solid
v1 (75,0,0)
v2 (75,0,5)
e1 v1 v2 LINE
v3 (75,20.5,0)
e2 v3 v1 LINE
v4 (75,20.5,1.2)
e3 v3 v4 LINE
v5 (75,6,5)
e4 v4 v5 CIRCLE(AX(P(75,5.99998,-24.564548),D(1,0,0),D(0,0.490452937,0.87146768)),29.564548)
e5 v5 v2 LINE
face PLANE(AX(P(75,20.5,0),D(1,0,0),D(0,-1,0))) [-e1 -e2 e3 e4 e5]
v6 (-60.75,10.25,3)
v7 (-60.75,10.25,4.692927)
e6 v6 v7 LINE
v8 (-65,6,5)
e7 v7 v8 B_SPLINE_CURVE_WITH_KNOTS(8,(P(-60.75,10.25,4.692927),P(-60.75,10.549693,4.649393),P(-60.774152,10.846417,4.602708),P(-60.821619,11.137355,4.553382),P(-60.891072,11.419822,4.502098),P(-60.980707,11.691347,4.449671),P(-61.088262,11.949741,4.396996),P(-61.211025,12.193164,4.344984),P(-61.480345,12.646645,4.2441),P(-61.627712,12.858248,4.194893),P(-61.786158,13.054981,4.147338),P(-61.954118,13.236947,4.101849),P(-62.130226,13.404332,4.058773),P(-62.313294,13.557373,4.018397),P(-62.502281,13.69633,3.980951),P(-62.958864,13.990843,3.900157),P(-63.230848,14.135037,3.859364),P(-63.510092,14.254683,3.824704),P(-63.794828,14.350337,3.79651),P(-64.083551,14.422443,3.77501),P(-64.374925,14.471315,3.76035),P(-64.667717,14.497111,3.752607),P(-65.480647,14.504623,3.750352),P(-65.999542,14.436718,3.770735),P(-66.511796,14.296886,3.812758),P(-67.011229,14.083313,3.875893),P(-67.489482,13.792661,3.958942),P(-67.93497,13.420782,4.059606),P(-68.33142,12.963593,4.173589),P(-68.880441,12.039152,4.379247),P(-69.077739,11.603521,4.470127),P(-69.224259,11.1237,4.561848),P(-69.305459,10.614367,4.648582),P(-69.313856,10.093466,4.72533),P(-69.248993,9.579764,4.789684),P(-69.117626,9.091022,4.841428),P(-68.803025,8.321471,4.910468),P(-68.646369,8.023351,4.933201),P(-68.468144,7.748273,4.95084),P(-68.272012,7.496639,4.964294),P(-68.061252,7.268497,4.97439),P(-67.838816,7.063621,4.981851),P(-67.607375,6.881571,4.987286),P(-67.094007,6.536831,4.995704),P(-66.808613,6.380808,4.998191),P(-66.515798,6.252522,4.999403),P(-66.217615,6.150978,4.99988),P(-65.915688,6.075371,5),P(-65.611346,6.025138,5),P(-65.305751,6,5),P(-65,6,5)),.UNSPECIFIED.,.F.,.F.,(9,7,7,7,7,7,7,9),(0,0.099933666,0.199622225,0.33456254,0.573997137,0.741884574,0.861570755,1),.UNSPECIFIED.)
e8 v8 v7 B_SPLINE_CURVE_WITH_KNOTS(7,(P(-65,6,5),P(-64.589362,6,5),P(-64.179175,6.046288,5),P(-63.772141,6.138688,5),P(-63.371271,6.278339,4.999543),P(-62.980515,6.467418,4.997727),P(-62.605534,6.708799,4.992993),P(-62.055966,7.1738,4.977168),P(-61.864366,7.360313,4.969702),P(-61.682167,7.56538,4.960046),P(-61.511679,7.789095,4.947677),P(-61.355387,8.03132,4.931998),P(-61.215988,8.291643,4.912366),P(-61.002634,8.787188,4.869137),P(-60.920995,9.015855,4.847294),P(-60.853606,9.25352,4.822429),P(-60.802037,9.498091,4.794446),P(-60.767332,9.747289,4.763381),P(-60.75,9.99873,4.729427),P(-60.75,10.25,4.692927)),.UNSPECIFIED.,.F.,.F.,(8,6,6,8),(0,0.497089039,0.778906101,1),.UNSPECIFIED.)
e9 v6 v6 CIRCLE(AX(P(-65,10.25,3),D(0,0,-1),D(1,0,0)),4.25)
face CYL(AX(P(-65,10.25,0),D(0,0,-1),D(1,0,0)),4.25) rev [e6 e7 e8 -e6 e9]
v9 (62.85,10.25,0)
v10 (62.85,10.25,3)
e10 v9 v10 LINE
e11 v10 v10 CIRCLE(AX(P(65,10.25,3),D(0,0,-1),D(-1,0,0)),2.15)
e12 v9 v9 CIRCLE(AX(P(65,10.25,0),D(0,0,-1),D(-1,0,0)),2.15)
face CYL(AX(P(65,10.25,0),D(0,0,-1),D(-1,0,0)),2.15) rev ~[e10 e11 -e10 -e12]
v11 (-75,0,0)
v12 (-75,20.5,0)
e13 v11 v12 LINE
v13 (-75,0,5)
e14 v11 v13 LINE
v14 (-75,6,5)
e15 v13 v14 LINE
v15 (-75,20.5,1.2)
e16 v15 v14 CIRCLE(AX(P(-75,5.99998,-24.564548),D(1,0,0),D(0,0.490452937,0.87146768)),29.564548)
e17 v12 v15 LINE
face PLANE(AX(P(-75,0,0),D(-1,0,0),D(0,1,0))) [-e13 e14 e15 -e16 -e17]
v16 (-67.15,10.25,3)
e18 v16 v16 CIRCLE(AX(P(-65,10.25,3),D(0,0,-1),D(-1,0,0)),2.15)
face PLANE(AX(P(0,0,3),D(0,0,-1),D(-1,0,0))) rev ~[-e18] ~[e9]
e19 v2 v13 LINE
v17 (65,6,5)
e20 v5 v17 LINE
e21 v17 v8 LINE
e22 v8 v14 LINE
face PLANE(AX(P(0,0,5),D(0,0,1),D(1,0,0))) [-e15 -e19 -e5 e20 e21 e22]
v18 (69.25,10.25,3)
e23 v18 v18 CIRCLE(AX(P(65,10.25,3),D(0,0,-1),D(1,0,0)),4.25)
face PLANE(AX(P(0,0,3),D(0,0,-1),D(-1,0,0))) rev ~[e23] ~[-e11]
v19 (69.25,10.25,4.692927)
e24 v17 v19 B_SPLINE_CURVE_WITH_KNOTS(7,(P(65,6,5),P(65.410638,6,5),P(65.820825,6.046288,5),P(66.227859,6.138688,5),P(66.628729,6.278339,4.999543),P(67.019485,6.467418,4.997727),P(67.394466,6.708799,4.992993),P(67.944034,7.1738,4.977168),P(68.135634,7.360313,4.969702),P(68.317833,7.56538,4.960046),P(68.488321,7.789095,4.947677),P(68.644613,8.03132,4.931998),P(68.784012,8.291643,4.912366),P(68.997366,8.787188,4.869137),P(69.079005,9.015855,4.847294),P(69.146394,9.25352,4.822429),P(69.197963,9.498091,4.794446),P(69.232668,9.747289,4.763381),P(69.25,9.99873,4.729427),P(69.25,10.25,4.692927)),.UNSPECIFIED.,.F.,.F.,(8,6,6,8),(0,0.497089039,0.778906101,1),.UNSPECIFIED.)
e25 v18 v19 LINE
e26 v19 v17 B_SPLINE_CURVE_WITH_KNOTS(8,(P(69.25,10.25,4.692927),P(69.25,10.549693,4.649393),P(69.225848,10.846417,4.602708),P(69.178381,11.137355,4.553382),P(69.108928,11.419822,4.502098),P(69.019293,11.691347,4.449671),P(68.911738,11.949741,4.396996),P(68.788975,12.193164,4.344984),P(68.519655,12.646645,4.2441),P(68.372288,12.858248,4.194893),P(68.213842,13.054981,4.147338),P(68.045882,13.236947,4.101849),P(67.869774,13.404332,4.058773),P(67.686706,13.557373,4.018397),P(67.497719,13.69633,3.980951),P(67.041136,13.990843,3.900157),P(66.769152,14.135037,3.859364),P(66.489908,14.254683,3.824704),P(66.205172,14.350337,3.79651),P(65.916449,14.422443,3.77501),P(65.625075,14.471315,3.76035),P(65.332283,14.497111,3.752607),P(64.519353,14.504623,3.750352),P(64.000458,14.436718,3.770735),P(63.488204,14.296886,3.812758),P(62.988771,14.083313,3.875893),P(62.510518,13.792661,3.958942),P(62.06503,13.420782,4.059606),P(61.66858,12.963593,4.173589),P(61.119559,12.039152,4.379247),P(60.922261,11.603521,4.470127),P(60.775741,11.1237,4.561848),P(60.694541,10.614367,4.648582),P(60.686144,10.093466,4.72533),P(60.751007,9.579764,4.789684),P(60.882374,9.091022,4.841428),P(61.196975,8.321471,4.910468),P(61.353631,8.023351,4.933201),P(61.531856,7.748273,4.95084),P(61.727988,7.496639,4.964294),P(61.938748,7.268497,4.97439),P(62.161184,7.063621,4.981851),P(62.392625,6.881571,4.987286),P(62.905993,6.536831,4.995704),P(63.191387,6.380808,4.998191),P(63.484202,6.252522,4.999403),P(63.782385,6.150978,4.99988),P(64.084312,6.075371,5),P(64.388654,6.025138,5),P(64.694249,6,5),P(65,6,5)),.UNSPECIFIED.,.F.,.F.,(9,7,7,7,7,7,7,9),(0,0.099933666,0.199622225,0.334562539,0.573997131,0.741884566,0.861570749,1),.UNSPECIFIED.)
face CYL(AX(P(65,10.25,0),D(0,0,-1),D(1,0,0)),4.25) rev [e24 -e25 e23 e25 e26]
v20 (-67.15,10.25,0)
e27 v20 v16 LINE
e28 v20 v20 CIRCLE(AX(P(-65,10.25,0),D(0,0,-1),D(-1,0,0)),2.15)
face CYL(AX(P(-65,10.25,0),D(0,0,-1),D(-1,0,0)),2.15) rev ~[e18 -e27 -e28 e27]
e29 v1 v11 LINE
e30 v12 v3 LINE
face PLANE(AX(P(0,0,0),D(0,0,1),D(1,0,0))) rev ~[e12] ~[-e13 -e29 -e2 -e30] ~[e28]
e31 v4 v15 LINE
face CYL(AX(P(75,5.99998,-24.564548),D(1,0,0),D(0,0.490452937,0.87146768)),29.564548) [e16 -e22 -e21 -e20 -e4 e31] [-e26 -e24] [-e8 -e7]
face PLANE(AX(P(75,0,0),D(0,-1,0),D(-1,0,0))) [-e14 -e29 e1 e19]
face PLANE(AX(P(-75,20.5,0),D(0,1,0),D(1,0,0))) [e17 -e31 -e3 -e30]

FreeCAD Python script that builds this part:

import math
import FreeCAD as App
import Part
import Sketcher

doc = App.newDocument("Part")
body = doc.addObject("PartDesign::Body", "Body")

sketch1 = doc.addObject("Sketcher::SketchObject", "Sketch")
body.addObject(sketch1)
sketch1.AttachmentSupport = (doc.XY_Plane, [""])
sketch1.MapMode = "FlatFace"
sketch1.addGeometry(Part.LineSegment(App.Vector(75, 20.5, 0), App.Vector(-75, 20.5, 0)), False)
sketch1.addGeometry(Part.LineSegment(App.Vector(-75, 20.5, 0), App.Vector(-75, 0, 0)), False)
sketch1.addGeometry(Part.LineSegment(App.Vector(-75, 0, 0), App.Vector(75, 0, 0)), False)
sketch1.addGeometry(Part.LineSegment(App.Vector(75, 0, 0), App.Vector(75, 20.5, 0)), False)
sketch1.addGeometry(Part.Circle(App.Vector(-65, 10.2, 0), App.Vector(0, 0, 1), 4.2), False)
sketch1.addGeometry(Part.Circle(App.Vector(65, 10.2, 0), App.Vector(0, 0, 1), 4.2), False)
sketch1.addConstraint(Sketcher.Constraint("Coincident", 0, 2, 1, 1))
sketch1.addConstraint(Sketcher.Constraint("Coincident", 1, 2, 2, 1))
sketch1.addConstraint(Sketcher.Constraint("Coincident", 2, 2, 3, 1))
sketch1.addConstraint(Sketcher.Constraint("Coincident", 3, 2, 0, 1))
sketch1.addConstraint(Sketcher.Constraint("Horizontal", 0))
sketch1.addConstraint(Sketcher.Constraint("Vertical", 1))
sketch1.addConstraint(Sketcher.Constraint("Horizontal", 2))
sketch1.addConstraint(Sketcher.Constraint("Vertical", 3))
sketch1.addConstraint(Sketcher.Constraint("Equal", 4, 5))
sketch1.addConstraint(Sketcher.Constraint("Symmetric", 1, 2, 2, 2, -1, 1))
sketch1.addConstraint(Sketcher.Constraint("Symmetric", 4, 3, 5, 3, -2))
sketch1.addConstraint(Sketcher.Constraint("Diameter", 4, 8.5))
sketch1.addConstraint(Sketcher.Constraint("DistanceX", 0, 2, 0, 1, 150.0))
sketch1.addConstraint(Sketcher.Constraint("DistanceY", 1, 2, 1, 1, 20.5))
sketch1.addConstraint(Sketcher.Constraint("DistanceX", 4, 3, 5, 3, 130.0))
sketch1.addConstraint(Sketcher.Constraint("DistanceY", -1, 1, 4, 3, 10.25))
pad1 = doc.addObject("PartDesign::Pad", "Pad")
body.addObject(pad1)
pad1.Profile = sketch1
pad1.Length = 5

sketch2 = doc.addObject("Sketcher::SketchObject", "Sketch001")
body.addObject(sketch2)
sketch2.AttachmentSupport = (doc.YZ_Plane, [""])
sketch2.MapMode = "FlatFace"
sketch2.AttachmentOffset = App.Placement(App.Vector(0, 0, 75), App.Rotation())
sketch2.addGeometry(Part.ArcOfCircle(Part.Circle(App.Vector(6, -24.6, 0), App.Vector(0, 0, 1), 29.6), math.radians(61), math.radians(90)), False)
sketch2.addGeometry(Part.LineSegment(App.Vector(20.5, 1.2, 0), App.Vector(20.5, 5, 0)), False)
sketch2.addGeometry(Part.LineSegment(App.Vector(20.5, 5, 0), App.Vector(6, 5, 0)), False)
sketch2.addConstraint(Sketcher.Constraint("Coincident", 0, 1, 1, 1))
sketch2.addConstraint(Sketcher.Constraint("Coincident", 1, 2, 2, 1))
sketch2.addConstraint(Sketcher.Constraint("Tangent", 2, 2, 0, 2))
sketch2.addConstraint(Sketcher.Constraint("Vertical", 1))
sketch2.addConstraint(Sketcher.Constraint("Horizontal", 2))
sketch2.addConstraint(Sketcher.Constraint("DistanceX", -1, 1, 0, 3, 6.0))
sketch2.addConstraint(Sketcher.Constraint("DistanceY", -1, 1, 0, 1, 1.2))
sketch2.addConstraint(Sketcher.Constraint("DistanceX", 2, 2, 2, 1, 14.5))
sketch2.addConstraint(Sketcher.Constraint("DistanceY", 1, 1, 1, 2, 3.8))
pocket1 = doc.addObject("PartDesign::Pocket", "Pocket")
body.addObject(pocket1)
pocket1.Profile = sketch2
pocket1.Type = "ThroughAll"

sketch3 = doc.addObject("Sketcher::SketchObject", "Sketch002")
body.addObject(sketch3)
sketch3.AttachmentSupport = (doc.XY_Plane, [""])
sketch3.MapMode = "FlatFace"
sketch3.addGeometry(Part.Circle(App.Vector(65, 10.2, 0), App.Vector(0, 0, 1), 4.2), False)
sketch3.addGeometry(Part.Circle(App.Vector(65, 10.2, 0), App.Vector(0, 0, 1), 2.1), False)
sketch3.addGeometry(Part.Circle(App.Vector(-65, 10.2, 0), App.Vector(0, 0, 1), 4.2), False)
sketch3.addGeometry(Part.Circle(App.Vector(-65, 10.2, 0), App.Vector(0, 0, 1), 2.1), False)
sketch3.addConstraint(Sketcher.Constraint("Coincident", 1, 3, 0, 3))
sketch3.addConstraint(Sketcher.Constraint("Coincident", 3, 3, 2, 3))
sketch3.addConstraint(Sketcher.Constraint("Equal", 0, 2))
sketch3.addConstraint(Sketcher.Constraint("Equal", 1, 3))
sketch3.addConstraint(Sketcher.Constraint("Symmetric", 0, 3, 2, 3, -2))
sketch3.addConstraint(Sketcher.Constraint("Diameter", 1, 4.3))
sketch3.addConstraint(Sketcher.Constraint("Diameter", 0, 8.5))
sketch3.addConstraint(Sketcher.Constraint("DistanceX", -1, 1, 0, 3, 65.0))
sketch3.addConstraint(Sketcher.Constraint("DistanceY", -1, 1, 0, 3, 10.25))
pad2 = doc.addObject("PartDesign::Pad", "Pad001")
body.addObject(pad2)
pad2.Profile = sketch3
pad2.Length = 3

doc.recompute()
